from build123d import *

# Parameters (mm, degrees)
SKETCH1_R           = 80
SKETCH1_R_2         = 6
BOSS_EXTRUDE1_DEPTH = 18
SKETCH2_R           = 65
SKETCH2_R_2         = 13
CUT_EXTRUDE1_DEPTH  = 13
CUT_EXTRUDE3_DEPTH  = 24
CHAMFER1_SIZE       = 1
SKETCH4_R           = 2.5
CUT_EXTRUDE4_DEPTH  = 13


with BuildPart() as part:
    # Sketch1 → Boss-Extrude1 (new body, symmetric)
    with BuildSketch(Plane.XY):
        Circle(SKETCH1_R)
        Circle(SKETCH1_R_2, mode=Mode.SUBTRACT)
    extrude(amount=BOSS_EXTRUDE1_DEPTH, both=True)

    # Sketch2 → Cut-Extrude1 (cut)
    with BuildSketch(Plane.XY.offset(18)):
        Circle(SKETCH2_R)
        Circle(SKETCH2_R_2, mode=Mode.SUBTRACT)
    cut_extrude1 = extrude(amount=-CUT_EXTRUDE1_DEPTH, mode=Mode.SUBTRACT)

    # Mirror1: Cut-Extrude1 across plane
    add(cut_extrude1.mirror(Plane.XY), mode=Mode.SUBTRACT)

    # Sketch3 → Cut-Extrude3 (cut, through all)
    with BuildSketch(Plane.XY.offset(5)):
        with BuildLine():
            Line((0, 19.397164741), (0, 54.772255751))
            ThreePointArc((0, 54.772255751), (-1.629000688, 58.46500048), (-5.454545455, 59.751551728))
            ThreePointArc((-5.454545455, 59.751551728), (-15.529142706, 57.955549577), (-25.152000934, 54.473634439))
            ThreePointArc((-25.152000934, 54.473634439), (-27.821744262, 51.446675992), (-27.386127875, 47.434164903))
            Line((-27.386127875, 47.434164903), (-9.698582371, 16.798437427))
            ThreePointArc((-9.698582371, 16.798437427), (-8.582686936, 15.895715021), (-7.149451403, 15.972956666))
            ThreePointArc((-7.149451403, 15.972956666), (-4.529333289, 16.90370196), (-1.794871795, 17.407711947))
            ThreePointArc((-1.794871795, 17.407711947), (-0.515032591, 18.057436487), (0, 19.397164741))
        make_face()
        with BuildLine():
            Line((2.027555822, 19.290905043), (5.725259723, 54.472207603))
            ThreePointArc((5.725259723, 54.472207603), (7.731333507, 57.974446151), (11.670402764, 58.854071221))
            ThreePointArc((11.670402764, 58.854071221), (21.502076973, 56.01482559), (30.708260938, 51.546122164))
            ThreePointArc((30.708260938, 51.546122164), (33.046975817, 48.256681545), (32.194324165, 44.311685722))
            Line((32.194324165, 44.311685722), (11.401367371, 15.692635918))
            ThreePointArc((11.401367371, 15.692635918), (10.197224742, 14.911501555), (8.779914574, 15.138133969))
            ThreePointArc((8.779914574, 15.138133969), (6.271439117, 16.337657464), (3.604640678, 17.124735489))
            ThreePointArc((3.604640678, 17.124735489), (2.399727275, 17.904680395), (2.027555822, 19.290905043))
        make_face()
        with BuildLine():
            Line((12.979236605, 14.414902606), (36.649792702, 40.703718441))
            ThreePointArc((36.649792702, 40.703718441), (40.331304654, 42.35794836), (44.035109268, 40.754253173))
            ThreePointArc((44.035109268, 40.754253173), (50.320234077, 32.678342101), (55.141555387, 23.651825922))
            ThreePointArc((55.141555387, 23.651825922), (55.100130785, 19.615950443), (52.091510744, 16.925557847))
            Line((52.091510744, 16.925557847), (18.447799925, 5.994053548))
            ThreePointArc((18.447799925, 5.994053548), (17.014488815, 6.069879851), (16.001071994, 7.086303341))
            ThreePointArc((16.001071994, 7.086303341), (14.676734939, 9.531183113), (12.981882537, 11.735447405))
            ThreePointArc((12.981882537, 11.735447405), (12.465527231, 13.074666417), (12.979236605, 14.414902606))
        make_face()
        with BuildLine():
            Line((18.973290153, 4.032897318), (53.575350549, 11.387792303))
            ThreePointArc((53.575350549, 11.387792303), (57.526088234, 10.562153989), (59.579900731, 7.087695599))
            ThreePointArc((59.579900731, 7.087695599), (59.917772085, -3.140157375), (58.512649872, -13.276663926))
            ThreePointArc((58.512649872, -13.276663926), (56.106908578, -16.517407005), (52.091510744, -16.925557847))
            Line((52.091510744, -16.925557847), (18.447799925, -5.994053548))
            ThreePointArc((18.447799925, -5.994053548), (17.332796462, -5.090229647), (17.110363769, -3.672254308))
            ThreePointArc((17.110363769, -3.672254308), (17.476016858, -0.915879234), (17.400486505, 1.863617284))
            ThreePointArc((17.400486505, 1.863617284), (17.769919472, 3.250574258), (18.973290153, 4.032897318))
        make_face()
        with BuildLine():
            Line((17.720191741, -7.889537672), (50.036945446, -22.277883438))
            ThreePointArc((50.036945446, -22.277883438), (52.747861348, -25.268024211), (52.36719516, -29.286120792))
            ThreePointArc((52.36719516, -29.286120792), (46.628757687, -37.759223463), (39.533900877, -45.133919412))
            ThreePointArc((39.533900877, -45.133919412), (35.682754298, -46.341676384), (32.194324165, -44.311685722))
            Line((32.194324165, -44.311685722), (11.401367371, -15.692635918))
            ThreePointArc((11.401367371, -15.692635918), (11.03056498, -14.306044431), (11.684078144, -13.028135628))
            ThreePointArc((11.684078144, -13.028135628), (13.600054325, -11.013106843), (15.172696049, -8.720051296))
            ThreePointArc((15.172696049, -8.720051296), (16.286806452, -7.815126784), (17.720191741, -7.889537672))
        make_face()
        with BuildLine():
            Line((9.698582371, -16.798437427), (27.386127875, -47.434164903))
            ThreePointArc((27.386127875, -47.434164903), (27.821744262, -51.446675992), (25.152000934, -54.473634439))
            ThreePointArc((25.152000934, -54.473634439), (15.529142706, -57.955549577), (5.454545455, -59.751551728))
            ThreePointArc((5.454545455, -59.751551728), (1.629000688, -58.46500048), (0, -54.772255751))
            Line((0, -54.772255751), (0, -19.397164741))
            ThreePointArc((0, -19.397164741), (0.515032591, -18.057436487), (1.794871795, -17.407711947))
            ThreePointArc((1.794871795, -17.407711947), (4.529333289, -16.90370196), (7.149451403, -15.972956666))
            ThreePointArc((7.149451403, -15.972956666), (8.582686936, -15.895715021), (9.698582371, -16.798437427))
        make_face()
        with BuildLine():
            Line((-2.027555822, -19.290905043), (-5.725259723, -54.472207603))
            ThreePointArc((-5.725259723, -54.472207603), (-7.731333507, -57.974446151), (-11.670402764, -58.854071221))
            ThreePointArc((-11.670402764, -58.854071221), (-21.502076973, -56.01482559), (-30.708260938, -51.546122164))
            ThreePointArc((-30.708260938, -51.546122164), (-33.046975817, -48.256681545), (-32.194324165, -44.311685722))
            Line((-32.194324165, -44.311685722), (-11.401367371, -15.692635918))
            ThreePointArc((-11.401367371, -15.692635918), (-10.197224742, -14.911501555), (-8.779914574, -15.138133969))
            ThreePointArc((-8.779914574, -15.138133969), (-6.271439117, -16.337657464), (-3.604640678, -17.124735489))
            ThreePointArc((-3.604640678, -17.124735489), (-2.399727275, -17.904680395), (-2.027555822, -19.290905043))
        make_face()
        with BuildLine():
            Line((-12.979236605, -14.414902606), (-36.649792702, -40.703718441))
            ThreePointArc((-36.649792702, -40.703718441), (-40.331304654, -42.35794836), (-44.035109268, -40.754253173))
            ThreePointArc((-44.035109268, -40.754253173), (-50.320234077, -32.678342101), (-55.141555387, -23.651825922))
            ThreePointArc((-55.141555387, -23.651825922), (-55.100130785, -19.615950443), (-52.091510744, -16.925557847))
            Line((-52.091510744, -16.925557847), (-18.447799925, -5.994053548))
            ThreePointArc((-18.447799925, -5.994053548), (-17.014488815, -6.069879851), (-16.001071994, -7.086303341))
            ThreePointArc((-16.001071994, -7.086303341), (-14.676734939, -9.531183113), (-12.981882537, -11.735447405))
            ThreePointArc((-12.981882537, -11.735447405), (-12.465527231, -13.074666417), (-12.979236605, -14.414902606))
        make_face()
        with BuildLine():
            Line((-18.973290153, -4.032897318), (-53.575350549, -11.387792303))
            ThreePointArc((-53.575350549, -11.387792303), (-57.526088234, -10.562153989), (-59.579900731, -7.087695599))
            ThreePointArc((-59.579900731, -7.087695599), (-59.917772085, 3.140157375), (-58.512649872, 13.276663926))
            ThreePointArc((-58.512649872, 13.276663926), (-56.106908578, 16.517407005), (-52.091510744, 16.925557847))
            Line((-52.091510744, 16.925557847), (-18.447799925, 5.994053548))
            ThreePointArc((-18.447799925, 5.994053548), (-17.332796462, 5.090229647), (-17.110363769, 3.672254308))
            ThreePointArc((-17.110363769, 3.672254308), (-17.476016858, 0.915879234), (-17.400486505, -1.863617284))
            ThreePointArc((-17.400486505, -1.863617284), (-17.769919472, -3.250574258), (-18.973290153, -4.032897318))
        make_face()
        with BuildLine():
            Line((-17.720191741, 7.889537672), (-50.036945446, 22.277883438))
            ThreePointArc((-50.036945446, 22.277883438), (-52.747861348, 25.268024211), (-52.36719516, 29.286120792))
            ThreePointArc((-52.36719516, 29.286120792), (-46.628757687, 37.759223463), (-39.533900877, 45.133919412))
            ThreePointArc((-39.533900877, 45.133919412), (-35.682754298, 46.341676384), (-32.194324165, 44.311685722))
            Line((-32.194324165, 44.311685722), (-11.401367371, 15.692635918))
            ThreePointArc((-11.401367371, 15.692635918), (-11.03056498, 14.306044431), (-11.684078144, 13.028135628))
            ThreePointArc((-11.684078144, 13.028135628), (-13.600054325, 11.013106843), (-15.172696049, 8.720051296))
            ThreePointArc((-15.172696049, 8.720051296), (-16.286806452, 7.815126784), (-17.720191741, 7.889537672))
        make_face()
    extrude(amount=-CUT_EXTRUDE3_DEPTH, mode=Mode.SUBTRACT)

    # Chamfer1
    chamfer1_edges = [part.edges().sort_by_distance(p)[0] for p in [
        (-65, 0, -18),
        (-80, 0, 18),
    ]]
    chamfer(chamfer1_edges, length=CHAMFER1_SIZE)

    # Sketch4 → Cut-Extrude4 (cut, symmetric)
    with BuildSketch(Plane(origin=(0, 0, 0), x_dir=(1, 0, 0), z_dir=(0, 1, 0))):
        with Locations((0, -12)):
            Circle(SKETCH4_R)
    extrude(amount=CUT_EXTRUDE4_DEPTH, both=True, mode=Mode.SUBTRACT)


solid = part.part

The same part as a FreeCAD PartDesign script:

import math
import FreeCAD as App
import Part
import Sketcher
Q = App.Units.Quantity


def edges_at(feature, points):
    """Names of the edges that pass closest to the given points."""
    edges = feature.Shape.Edges
    near = lambda p: min(range(len(edges)), key=lambda i: edges[i].distToShape(Part.Vertex(*p))[0])
    return sorted({f"Edge{near(p) + 1}" for p in points})

doc = App.newDocument("Part")
body = doc.addObject("PartDesign::Body", "Body")

sketch1 = body.newObject("Sketcher::SketchObject", "Sketch")
sketch1.AttachmentSupport = (doc.getObject("XY_Plane"), [""])
sketch1.MapMode = "FlatFace"
sketch1.addGeometry(Part.Circle(App.Vector(0, 0, 0), App.Vector(0, 0, 1), 80), False)
sketch1.addGeometry(Part.Circle(App.Vector(0, 0, 0), App.Vector(0, 0, 1), 6), False)
sketch1.addConstraint(Sketcher.Constraint("Coincident", 0, 3, -1, 1))
sketch1.addConstraint(Sketcher.Constraint("Coincident", 1, 3, -1, 1))
sketch1.addConstraint(Sketcher.Constraint("Diameter", 0, Q("160 mm")))
sketch1.addConstraint(Sketcher.Constraint("Diameter", 1, Q("12 mm")))
pad1 = body.newObject("PartDesign::Pad", "Pad")
pad1.Profile = sketch1
pad1.Length = 36
pad1.Midplane = True

sketch2 = body.newObject("Sketcher::SketchObject", "Sketch001")
sketch2.AttachmentSupport = (doc.getObject("XY_Plane"), [""])
sketch2.MapMode = "FlatFace"
sketch2.AttachmentOffset = App.Placement(App.Vector(0, 0, 18), App.Rotation())
sketch2.addGeometry(Part.Circle(App.Vector(0, 0, 0), App.Vector(0, 0, 1), 65), False)
sketch2.addGeometry(Part.Circle(App.Vector(0, 0, 0), App.Vector(0, 0, 1), 13), False)
sketch2.addConstraint(Sketcher.Constraint("Coincident", 0, 3, -1, 1))
sketch2.addConstraint(Sketcher.Constraint("Coincident", 1, 3, -1, 1))
sketch2.addConstraint(Sketcher.Constraint("Diameter", 0, Q("130 mm")))
sketch2.addConstraint(Sketcher.Constraint("Diameter", 1, Q("26 mm")))
pocket1 = body.newObject("PartDesign::Pocket", "Pocket")
pocket1.Profile = sketch2
pocket1.Length = 13
doc.recompute()

mirrored = body.newObject("PartDesign::Mirrored", "Mirrored")
mirrored.Originals = [pocket1]
mirrored.MirrorPlane = (doc.getObject("XY_Plane"), [""])
body.Tip = mirrored

sketch3 = body.newObject("Sketcher::SketchObject", "Sketch002")
sketch3.AttachmentSupport = (doc.getObject("XY_Plane"), [""])
sketch3.MapMode = "FlatFace"
sketch3.AttachmentOffset = App.Placement(App.Vector(0, 0, 5), App.Rotation())
sketch3.addGeometry(Part.LineSegment(App.Vector(0, 19.397165, 0), App.Vector(0, 54.772256, 0)), False)
sketch3.addGeometry(Part.ArcOfCircle(Part.Circle(App.Vector(-5, 54.772256, 0), App.Vector(0, 0, 1), 5), math.radians(0), math.radians(95.215909)), False)
sketch3.addGeometry(Part.ArcOfCircle(Part.Circle(App.Vector(0, 0, 0), App.Vector(0, 0, 1), 60), math.radians(95.215909), math.radians(114.784091)), False)
sketch3.addGeometry(Part.ArcOfCircle(Part.Circle(App.Vector(-23.056001, 49.934165, 0), App.Vector(0, 0, 1), 5), math.radians(114.784091), math.radians(210)), False)
sketch3.addGeometry(Part.LineSegment(App.Vector(-27.386128, 47.434165, 0), App.Vector(-9.698582, 16.798437, 0)), False)
sketch3.addGeometry(Part.ArcOfCircle(Part.Circle(App.Vector(-7.966532, 17.798437, 0), App.Vector(0, 0, 1), 2), math.radians(-150), math.radians(-65.886842)), False)
sketch3.addGeometry(Part.ArcOfCircle(Part.Circle(App.Vector(0, 0, 0), App.Vector(0, 0, 1), 17.5), math.radians(95.886842), math.radians(114.113158)), False)
sketch3.addGeometry(Part.ArcOfCircle(Part.Circle(App.Vector(-2, 19.397165, 0), App.Vector(0, 0, 1), 2), math.radians(-84.113158), math.radians(0)), False)
sketch3.addGeometry(Part.LineSegment(App.Vector(5.72526, 54.472208, 0), App.Vector(2.027556, 19.290905, 0)), False)
sketch3.addGeometry(Part.ArcOfCircle(Part.Circle(App.Vector(4.0166, 19.081848, 0), App.Vector(0, 0, 1), 2), math.radians(174), math.radians(258.113158)), False)
sketch3.addGeometry(Part.ArcOfCircle(Part.Circle(App.Vector(0, 0, 0), App.Vector(0, 0, 1), 17.5), math.radians(59.886842), math.radians(78.113158)), False)
sketch3.addGeometry(Part.ArcOfCircle(Part.Circle(App.Vector(9.783333, 16.868206, 0), App.Vector(0, 0, 1), 2), math.radians(-120.113158), math.radians(-36)), False)
sketch3.addGeometry(Part.LineSegment(App.Vector(11.401367, 15.692636, 0), App.Vector(32.194324, 44.311686, 0)), False)
sketch3.addGeometry(Part.ArcOfCircle(Part.Circle(App.Vector(28.149239, 47.250612, 0), App.Vector(0, 0, 1), 5), math.radians(-36), math.radians(59.215909)), False)
sketch3.addGeometry(Part.ArcOfCircle(Part.Circle(App.Vector(0, 0, 0), App.Vector(0, 0, 1), 60), math.radians(59.215909), math.radians(78.784091)), False)
sketch3.addGeometry(Part.ArcOfCircle(Part.Circle(App.Vector(10.697869, 53.949565, 0), App.Vector(0, 0, 1), 5), math.radians(78.784091), math.radians(174)), False)
sketch3.addGeometry(Part.LineSegment(App.Vector(36.649793, 40.703718, 0), App.Vector(12.979237, 14.414903, 0)), False)
sketch3.addGeometry(Part.ArcOfCircle(Part.Circle(App.Vector(14.465526, 13.076641, 0), App.Vector(0, 0, 1), 2), math.radians(138), math.radians(222.113158)), False)
sketch3.addGeometry(Part.ArcOfCircle(Part.Circle(App.Vector(0, 0, 0), App.Vector(0, 0, 1), 17.5), math.radians(23.886842), math.radians(42.113158)), False)
sketch3.addGeometry(Part.ArcOfCircle(Part.Circle(App.Vector(17.829766, 7.896167, 0), App.Vector(0, 0, 1), 2), math.radians(-156.113158), math.radians(-72)), False)
sketch3.addGeometry(Part.LineSegment(App.Vector(18.4478, 5.994054, 0), App.Vector(52.091511, 16.925558, 0)), False)
sketch3.addGeometry(Part.ArcOfCircle(Part.Circle(App.Vector(50.546426, 21.68084, 0), App.Vector(0, 0, 1), 5), math.radians(-72), math.radians(23.215909)), False)
sketch3.addGeometry(Part.ArcOfCircle(Part.Circle(App.Vector(0, 0, 0), App.Vector(0, 0, 1), 60), math.radians(23.215909), math.radians(42.784091)), False)
sketch3.addGeometry(Part.ArcOfCircle(Part.Circle(App.Vector(40.365517, 37.358065, 0), App.Vector(0, 0, 1), 5), math.radians(42.784091), math.radians(138)), False)
sketch3.addGeometry(Part.LineSegment(App.Vector(53.575351, 11.387792, 0), App.Vector(18.97329, 4.032897, 0)), False)
sketch3.addGeometry(Part.ArcOfCircle(Part.Circle(App.Vector(19.389114, 2.076602, 0), App.Vector(0, 0, 1), 2), math.radians(102), math.radians(186.113158)), False)
sketch3.addGeometry(Part.ArcOfCircle(Part.Circle(App.Vector(0, 0, 0), App.Vector(0, 0, 1), 17.5), math.radians(-12.113158), math.radians(6.113158)), False)
sketch3.addGeometry(Part.ArcOfCircle(Part.Circle(App.Vector(19.065834, -4.091941, 0), App.Vector(0, 0, 1), 2), math.radians(167.886842), math.radians(252)), False)
sketch3.addGeometry(Part.LineSegment(App.Vector(18.4478, -5.994054, 0), App.Vector(52.091511, -16.925558, 0)), False)
sketch3.addGeometry(Part.ArcOfCircle(Part.Circle(App.Vector(53.636596, -12.170275, 0), App.Vector(0, 0, 1), 5), math.radians(-108), math.radians(-12.784091)), False)
sketch3.addGeometry(Part.ArcOfCircle(Part.Circle(App.Vector(0, 0, 0), App.Vector(0, 0, 1), 60), math.radians(-12.784091), math.radians(6.784091)), False)
sketch3.addGeometry(Part.ArcOfCircle(Part.Circle(App.Vector(54.614909, 6.497054, 0), App.Vector(0, 0, 1), 5), math.radians(6.784091), math.radians(102)), False)
sketch3.addGeometry(Part.LineSegment(App.Vector(50.036945, -22.277883, 0), App.Vector(17.720192, -7.889538, 0)), False)
sketch3.addGeometry(Part.ArcOfCircle(Part.Circle(App.Vector(16.906718, -9.716629, 0), App.Vector(0, 0, 1), 2), math.radians(66), math.radians(150.113158)), False)
sketch3.addGeometry(Part.ArcOfCircle(Part.Circle(App.Vector(0, 0, 0), App.Vector(0, 0, 1), 17.5), math.radians(-48.113158), math.radians(-29.886842)), False)
sketch3.addGeometry(Part.ArcOfCircle(Part.Circle(App.Vector(13.019401, -14.517065, 0), App.Vector(0, 0, 1), 2), math.radians(131.886842), math.radians(216)), False)
sketch3.addGeometry(Part.LineSegment(App.Vector(11.401367, -15.692636, 0), App.Vector(32.194324, -44.311686, 0)), False)
sketch3.addGeometry(Part.ArcOfCircle(Part.Circle(App.Vector(36.239409, -41.372759, 0), App.Vector(0, 0, 1), 5), math.radians(-144), math.radians(-48.784091)), False)
sketch3.addGeometry(Part.ArcOfCircle(Part.Circle(App.Vector(0, 0, 0), App.Vector(0, 0, 1), 60), math.radians(-48.784091), math.radians(-29.215909)), False)
sketch3.addGeometry(Part.ArcOfCircle(Part.Circle(App.Vector(48.003262, -26.845611, 0), App.Vector(0, 0, 1), 5), math.radians(-29.215909), math.radians(66)), False)
sketch3.addGeometry(Part.LineSegment(App.Vector(27.386128, -47.434165, 0), App.Vector(9.698582, -16.798437, 0)), False)
sketch3.addGeometry(Part.ArcOfCircle(Part.Circle(App.Vector(7.966532, -17.798437, 0), App.Vector(0, 0, 1), 2), math.radians(30), math.radians(114.113158)), False)
sketch3.addGeometry(Part.ArcOfCircle(Part.Circle(App.Vector(0, 0, 0), App.Vector(0, 0, 1), 17.5), math.radians(-84.113158), math.radians(-65.886842)), False)
sketch3.addGeometry(Part.ArcOfCircle(Part.Circle(App.Vector(2, -19.397165, 0), App.Vector(0, 0, 1), 2), math.radians(95.886842), math.radians(180)), False)
sketch3.addGeometry(Part.LineSegment(App.Vector(0, -19.397165, 0), App.Vector(0, -54.772256, 0)), False)
sketch3.addGeometry(Part.ArcOfCircle(Part.Circle(App.Vector(5, -54.772256, 0), App.Vector(0, 0, 1), 5), math.radians(-180), math.radians(-84.784091)), False)
sketch3.addGeometry(Part.ArcOfCircle(Part.Circle(App.Vector(0, 0, 0), App.Vector(0, 0, 1), 60), math.radians(-84.784091), math.radians(-65.215909)), False)
sketch3.addGeometry(Part.ArcOfCircle(Part.Circle(App.Vector(23.056001, -49.934165, 0), App.Vector(0, 0, 1), 5), math.radians(-65.215909), math.radians(30)), False)
sketch3.addGeometry(Part.LineSegment(App.Vector(-5.72526, -54.472208, 0), App.Vector(-2.027556, -19.290905, 0)), False)
sketch3.addGeometry(Part.ArcOfCircle(Part.Circle(App.Vector(-4.0166, -19.081848, 0), App.Vector(0, 0, 1), 2), math.radians(-6), math.radians(78.113158)), False)
sketch3.addGeometry(Part.ArcOfCircle(Part.Circle(App.Vector(0, 0, 0), App.Vector(0, 0, 1), 17.5), math.radians(-120.113158), math.radians(-101.886842)), False)
sketch3.addGeometry(Part.ArcOfCircle(Part.Circle(App.Vector(-9.783333, -16.868206, 0), App.Vector(0, 0, 1), 2), math.radians(59.886842), math.radians(144)), False)
sketch3.addGeometry(Part.LineSegment(App.Vector(-11.401367, -15.692636, 0), App.Vector(-32.194324, -44.311686, 0)), False)
sketch3.addGeometry(Part.ArcOfCircle(Part.Circle(App.Vector(-28.149239, -47.250612, 0), App.Vector(0, 0, 1), 5), math.radians(144), math.radians(239.215909)), False)
sketch3.addGeometry(Part.ArcOfCircle(Part.Circle(App.Vector(0, 0, 0), App.Vector(0, 0, 1), 60), math.radians(-120.784091), math.radians(-101.215909)), False)
sketch3.addGeometry(Part.ArcOfCircle(Part.Circle(App.Vector(-10.697869, -53.949565, 0), App.Vector(0, 0, 1), 5), math.radians(-101.215909), math.radians(-6)), False)
sketch3.addGeometry(Part.LineSegment(App.Vector(-36.649793, -40.703718, 0), App.Vector(-12.979237, -14.414903, 0)), False)
sketch3.addGeometry(Part.ArcOfCircle(Part.Circle(App.Vector(-14.465526, -13.076641, 0), App.Vector(0, 0, 1), 2), math.radians(-42), math.radians(42.113158)), False)
sketch3.addGeometry(Part.ArcOfCircle(Part.Circle(App.Vector(0, 0, 0), App.Vector(0, 0, 1), 17.5), math.radians(-156.113158), math.radians(-137.886842)), False)
sketch3.addGeometry(Part.ArcOfCircle(Part.Circle(App.Vector(-17.829766, -7.896167, 0), App.Vector(0, 0, 1), 2), math.radians(23.886842), math.radians(108)), False)
sketch3.addGeometry(Part.LineSegment(App.Vector(-18.4478, -5.994054, 0), App.Vector(-52.091511, -16.925558, 0)), False)
sketch3.addGeometry(Part.ArcOfCircle(Part.Circle(App.Vector(-50.546426, -21.68084, 0), App.Vector(0, 0, 1), 5), math.radians(108), math.radians(203.215909)), False)
sketch3.addGeometry(Part.ArcOfCircle(Part.Circle(App.Vector(0, 0, 0), App.Vector(0, 0, 1), 60), math.radians(-156.784091), math.radians(-137.215909)), False)
sketch3.addGeometry(Part.ArcOfCircle(Part.Circle(App.Vector(-40.365517, -37.358065, 0), App.Vector(0, 0, 1), 5), math.radians(-137.215909), math.radians(-42)), False)
sketch3.addGeometry(Part.LineSegment(App.Vector(-53.575351, -11.387792, 0), App.Vector(-18.97329, -4.032897, 0)), False)
sketch3.addGeometry(Part.ArcOfCircle(Part.Circle(App.Vector(-19.389114, -2.076602, 0), App.Vector(0, 0, 1), 2), math.radians(-78), math.radians(6.113158)), False)
sketch3.addGeometry(Part.ArcOfCircle(Part.Circle(App.Vector(0, 0, 0), App.Vector(0, 0, 1), 17.5), math.radians(167.886842), math.radians(186.113158)), False)
sketch3.addGeometry(Part.ArcOfCircle(Part.Circle(App.Vector(-19.065834, 4.091941, 0), App.Vector(0, 0, 1), 2), math.radians(-12.113158), math.radians(72)), False)
sketch3.addGeometry(Part.LineSegment(App.Vector(-18.4478, 5.994054, 0), App.Vector(-52.091511, 16.925558, 0)), False)
sketch3.addGeometry(Part.ArcOfCircle(Part.Circle(App.Vector(-53.636596, 12.170275, 0), App.Vector(0, 0, 1), 5), math.radians(72), math.radians(167.215909)), False)
sketch3.addGeometry(Part.ArcOfCircle(Part.Circle(App.Vector(0, 0, 0), App.Vector(0, 0, 1), 60), math.radians(167.215909), math.radians(186.784091)), False)
sketch3.addGeometry(Part.ArcOfCircle(Part.Circle(App.Vector(-54.614909, -6.497054, 0), App.Vector(0, 0, 1), 5), math.radians(-173.215909), math.radians(-78)), False)
sketch3.addGeometry(Part.LineSegment(App.Vector(-50.036945, 22.277883, 0), App.Vector(-17.720192, 7.889538, 0)), False)
sketch3.addGeometry(Part.ArcOfCircle(Part.Circle(App.Vector(-16.906718, 9.716629, 0), App.Vector(0, 0, 1), 2), math.radians(-114), math.radians(-29.886842)), False)
sketch3.addGeometry(Part.ArcOfCircle(Part.Circle(App.Vector(0, 0, 0), App.Vector(0, 0, 1), 17.5), math.radians(131.886842), math.radians(150.113158)), False)
sketch3.addGeometry(Part.ArcOfCircle(Part.Circle(App.Vector(-13.019401, 14.517065, 0), App.Vector(0, 0, 1), 2), math.radians(-48.113158), math.radians(36)), False)
sketch3.addGeometry(Part.LineSegment(App.Vector(-11.401367, 15.692636, 0), App.Vector(-32.194324, 44.311686, 0)), False)
sketch3.addGeometry(Part.ArcOfCircle(Part.Circle(App.Vector(-36.239409, 41.372759, 0), App.Vector(0, 0, 1), 5), math.radians(36), math.radians(131.215909)), False)
sketch3.addGeometry(Part.ArcOfCircle(Part.Circle(App.Vector(0, 0, 0), App.Vector(0, 0, 1), 60), math.radians(131.215909), math.radians(150.784091)), False)
sketch3.addGeometry(Part.ArcOfCircle(Part.Circle(App.Vector(-48.003262, 26.845611, 0), App.Vector(0, 0, 1), 5), math.radians(150.784091), math.radians(246)), False)
sketch3.addConstraint(Sketcher.Constraint("Tangent", 0, 2, 1, 1))
sketch3.addConstraint(Sketcher.Constraint("Tangent", 1, 2, 2, 1))
sketch3.addConstraint(Sketcher.Constraint("Tangent", 2, 2, 3, 1))
sketch3.addConstraint(Sketcher.Constraint("Tangent", 3, 2, 4, 1))
sketch3.addConstraint(Sketcher.Constraint("Tangent", 4, 2, 5, 1))
sketch3.addConstraint(Sketcher.Constraint("Tangent", 5, 2, 6, 2))
sketch3.addConstraint(Sketcher.Constraint("Tangent", 6, 1, 7, 1))
sketch3.addConstraint(Sketcher.Constraint("Tangent", 7, 2, 0, 1))
sketch3.addConstraint(Sketcher.Constraint("Tangent", 8, 2, 9, 1))
sketch3.addConstraint(Sketcher.Constraint("Tangent", 9, 2, 10, 2))
sketch3.addConstraint(Sketcher.Constraint("Tangent", 10, 1, 11, 1))
sketch3.addConstraint(Sketcher.Constraint("Tangent", 11, 2, 12, 1))
sketch3.addConstraint(Sketcher.Constraint("Tangent", 12, 2, 13, 1))
sketch3.addConstraint(Sketcher.Constraint("Tangent", 13, 2, 14, 1))
sketch3.addConstraint(Sketcher.Constraint("Tangent", 14, 2, 15, 1))
sketch3.addConstraint(Sketcher.Constraint("Tangent", 15, 2, 8, 1))
sketch3.addConstraint(Sketcher.Constraint("Tangent", 16, 2, 17, 1))
sketch3.addConstraint(Sketcher.Constraint("Tangent", 17, 2, 18, 2))
sketch3.addConstraint(Sketcher.Constraint("Tangent", 18, 1, 19, 1))
sketch3.addConstraint(Sketcher.Constraint("Tangent", 19, 2, 20, 1))
sketch3.addConstraint(Sketcher.Constraint("Tangent", 20, 2, 21, 1))
sketch3.addConstraint(Sketcher.Constraint("Tangent", 21, 2, 22, 1))
sketch3.addConstraint(Sketcher.Constraint("Tangent", 22, 2, 23, 1))
sketch3.addConstraint(Sketcher.Constraint("Tangent", 23, 2, 16, 1))
sketch3.addConstraint(Sketcher.Constraint("Tangent", 24, 2, 25, 1))
sketch3.addConstraint(Sketcher.Constraint("Tangent", 25, 2, 26, 2))
sketch3.addConstraint(Sketcher.Constraint("Tangent", 26, 1, 27, 1))
sketch3.addConstraint(Sketcher.Constraint("Tangent", 27, 2, 28, 1))
sketch3.addConstraint(Sketcher.Constraint("Tangent", 28, 2, 29, 1))
sketch3.addConstraint(Sketcher.Constraint("Tangent", 29, 2, 30, 1))
sketch3.addConstraint(Sketcher.Constraint("Tangent", 30, 2, 31, 1))
sketch3.addConstraint(Sketcher.Constraint("Tangent", 31, 2, 24, 1))
sketch3.addConstraint(Sketcher.Constraint("Tangent", 32, 2, 33, 1))
sketch3.addConstraint(Sketcher.Constraint("Tangent", 33, 2, 34, 2))
sketch3.addConstraint(Sketcher.Constraint("Tangent", 34, 1, 35, 1))
sketch3.addConstraint(Sketcher.Constraint("Tangent", 35, 2, 36, 1))
sketch3.addConstraint(Sketcher.Constraint("Tangent", 36, 2, 37, 1))
sketch3.addConstraint(Sketcher.Constraint("Tangent", 37, 2, 38, 1))
sketch3.addConstraint(Sketcher.Constraint("Tangent", 38, 2, 39, 1))
sketch3.addConstraint(Sketcher.Constraint("Tangent", 39, 2, 32, 1))
sketch3.addConstraint(Sketcher.Constraint("Tangent", 40, 2, 41, 1))
sketch3.addConstraint(Sketcher.Constraint("Tangent", 41, 2, 42, 2))
sketch3.addConstraint(Sketcher.Constraint("Tangent", 42, 1, 43, 1))
sketch3.addConstraint(Sketcher.Constraint("Tangent", 43, 2, 44, 1))
sketch3.addConstraint(Sketcher.Constraint("Tangent", 44, 2, 45, 1))
sketch3.addConstraint(Sketcher.Constraint("Tangent", 45, 2, 46, 1))
sketch3.addConstraint(Sketcher.Constraint("Tangent", 46, 2, 47, 1))
sketch3.addConstraint(Sketcher.Constraint("Tangent", 47, 2, 40, 1))
sketch3.addConstraint(Sketcher.Constraint("Tangent", 48, 2, 49, 1))
sketch3.addConstraint(Sketcher.Constraint("Tangent", 49, 2, 50, 2))
sketch3.addConstraint(Sketcher.Constraint("Tangent", 50, 1, 51, 1))
sketch3.addConstraint(Sketcher.Constraint("Tangent", 51, 2, 52, 1))
sketch3.addConstraint(Sketcher.Constraint("Tangent", 52, 2, 53, 1))
sketch3.addConstraint(Sketcher.Constraint("Tangent", 53, 2, 54, 1))
sketch3.addConstraint(Sketcher.Constraint("Tangent", 54, 2, 55, 1))
sketch3.addConstraint(Sketcher.Constraint("Tangent", 55, 2, 48, 1))
sketch3.addConstraint(Sketcher.Constraint("Tangent", 56, 2, 57, 1))
sketch3.addConstraint(Sketcher.Constraint("Tangent", 57, 2, 58, 2))
sketch3.addConstraint(Sketcher.Constraint("Tangent", 58, 1, 59, 1))
sketch3.addConstraint(Sketcher.Constraint("Tangent", 59, 2, 60, 1))
sketch3.addConstraint(Sketcher.Constraint("Tangent", 60, 2, 61, 1))
sketch3.addConstraint(Sketcher.Constraint("Tangent", 61, 2, 62, 1))
sketch3.addConstraint(Sketcher.Constraint("Tangent", 62, 2, 63, 1))
sketch3.addConstraint(Sketcher.Constraint("Tangent", 63, 2, 56, 1))
sketch3.addConstraint(Sketcher.Constraint("Tangent", 64, 2, 65, 1))
sketch3.addConstraint(Sketcher.Constraint("Tangent", 65, 2, 66, 2))
sketch3.addConstraint(Sketcher.Constraint("Tangent", 66, 1, 67, 1))
sketch3.addConstraint(Sketcher.Constraint("Tangent", 67, 2, 68, 1))
sketch3.addConstraint(Sketcher.Constraint("Tangent", 68, 2, 69, 1))
sketch3.addConstraint(Sketcher.Constraint("Tangent", 69, 2, 70, 1))
sketch3.addConstraint(Sketcher.Constraint("Tangent", 70, 2, 71, 1))
sketch3.addConstraint(Sketcher.Constraint("Tangent", 71, 2, 64, 1))
sketch3.addConstraint(Sketcher.Constraint("Tangent", 72, 2, 73, 1))
sketch3.addConstraint(Sketcher.Constraint("Tangent", 73, 2, 74, 2))
sketch3.addConstraint(Sketcher.Constraint("Tangent", 74, 1, 75, 1))
sketch3.addConstraint(Sketcher.Constraint("Tangent", 75, 2, 76, 1))
sketch3.addConstraint(Sketcher.Constraint("Tangent", 76, 2, 77, 1))
sketch3.addConstraint(Sketcher.Constraint("Tangent", 77, 2, 78, 1))
sketch3.addConstraint(Sketcher.Constraint("Tangent", 78, 2, 79, 1))
sketch3.addConstraint(Sketcher.Constraint("Tangent", 79, 2, 72, 1))
sketch3.addConstraint(Sketcher.Constraint("Vertical", 0))
sketch3.addConstraint(Sketcher.Constraint("Vertical", 44))
sketch3.addConstraint(Sketcher.Constraint("Coincident", 2, 3, -1, 1))
sketch3.addConstraint(Sketcher.Constraint("Coincident", 6, 3, -1, 1))
sketch3.addConstraint(Sketcher.Constraint("Coincident", 10, 3, -1, 1))
sketch3.addConstraint(Sketcher.Constraint("Coincident", 14, 3, -1, 1))
sketch3.addConstraint(Sketcher.Constraint("Coincident", 18, 3, -1, 1))
sketch3.addConstraint(Sketcher.Constraint("Coincident", 22, 3, -1, 1))
sketch3.addConstraint(Sketcher.Constraint("Coincident", 26, 3, -1, 1))
sketch3.addConstraint(Sketcher.Constraint("Coincident", 30, 3, -1, 1))
sketch3.addConstraint(Sketcher.Constraint("Coincident", 34, 3, -1, 1))
sketch3.addConstraint(Sketcher.Constraint("Coincident", 38, 3, -1, 1))
sketch3.addConstraint(Sketcher.Constraint("Coincident", 42, 3, -1, 1))
sketch3.addConstraint(Sketcher.Constraint("Coincident", 46, 3, -1, 1))
sketch3.addConstraint(Sketcher.Constraint("Coincident", 50, 3, -1, 1))
sketch3.addConstraint(Sketcher.Constraint("Coincident", 54, 3, -1, 1))
sketch3.addConstraint(Sketcher.Constraint("Coincident", 58, 3, -1, 1))
sketch3.addConstraint(Sketcher.Constraint("Coincident", 62, 3, -1, 1))
sketch3.addConstraint(Sketcher.Constraint("Coincident", 66, 3, -1, 1))
sketch3.addConstraint(Sketcher.Constraint("Coincident", 70, 3, -1, 1))
sketch3.addConstraint(Sketcher.Constraint("Coincident", 74, 3, -1, 1))
sketch3.addConstraint(Sketcher.Constraint("Coincident", 78, 3, -1, 1))
sketch3.addConstraint(Sketcher.Constraint("Equal", 1, 3))
sketch3.addConstraint(Sketcher.Constraint("Equal", 5, 7))
sketch3.addConstraint(Sketcher.Constraint("Equal", 7, 9))
sketch3.addConstraint(Sketcher.Constraint("Equal", 6, 10))
sketch3.addConstraint(Sketcher.Constraint("Equal", 9, 11))
sketch3.addConstraint(Sketcher.Constraint("Equal", 3, 13))
sketch3.addConstraint(Sketcher.Constraint("Equal", 2, 14))
sketch3.addConstraint(Sketcher.Constraint("Equal", 13, 15))
sketch3.addConstraint(Sketcher.Constraint("Equal", 11, 17))
sketch3.addConstraint(Sketcher.Constraint("Equal", 10, 18))
sketch3.addConstraint(Sketcher.Constraint("Equal", 17, 19))
sketch3.addConstraint(Sketcher.Constraint("Equal", 15, 21))
sketch3.addConstraint(Sketcher.Constraint("Equal", 14, 22))
sketch3.addConstraint(Sketcher.Constraint("Equal", 21, 23))
sketch3.addConstraint(Sketcher.Constraint("Equal", 19, 25))
sketch3.addConstraint(Sketcher.Constraint("Equal", 18, 26))
sketch3.addConstraint(Sketcher.Constraint("Equal", 25, 27))
sketch3.addConstraint(Sketcher.Constraint("Equal", 23, 29))
sketch3.addConstraint(Sketcher.Constraint("Equal", 22, 30))
sketch3.addConstraint(Sketcher.Constraint("Equal", 29, 31))
sketch3.addConstraint(Sketcher.Constraint("Equal", 27, 33))
sketch3.addConstraint(Sketcher.Constraint("Equal", 26, 34))
sketch3.addConstraint(Sketcher.Constraint("Equal", 33, 35))
sketch3.addConstraint(Sketcher.Constraint("Equal", 31, 37))
sketch3.addConstraint(Sketcher.Constraint("Equal", 30, 38))
sketch3.addConstraint(Sketcher.Constraint("Equal", 37, 39))
sketch3.addConstraint(Sketcher.Constraint("Equal", 35, 41))
sketch3.addConstraint(Sketcher.Constraint("Equal", 34, 42))
sketch3.addConstraint(Sketcher.Constraint("Equal", 41, 43))
sketch3.addConstraint(Sketcher.Constraint("Equal", 39, 45))
sketch3.addConstraint(Sketcher.Constraint("Equal", 38, 46))
sketch3.addConstraint(Sketcher.Constraint("Equal", 45, 47))
sketch3.addConstraint(Sketcher.Constraint("Equal", 43, 49))
sketch3.addConstraint(Sketcher.Constraint("Equal", 42, 50))
sketch3.addConstraint(Sketcher.Constraint("Equal", 49, 51))
sketch3.addConstraint(Sketcher.Constraint("Equal", 47, 53))
sketch3.addConstraint(Sketcher.Constraint("Equal", 46, 54))
sketch3.addConstraint(Sketcher.Constraint("Equal", 53, 55))
sketch3.addConstraint(Sketcher.Constraint("Equal", 51, 57))
sketch3.addConstraint(Sketcher.Constraint("Equal", 50, 58))
sketch3.addConstraint(Sketcher.Constraint("Equal", 57, 59))
sketch3.addConstraint(Sketcher.Constraint("Equal", 55, 61))
sketch3.addConstraint(Sketcher.Constraint("Equal", 54, 62))
sketch3.addConstraint(Sketcher.Constraint("Equal", 61, 63))
sketch3.addConstraint(Sketcher.Constraint("Equal", 59, 65))
sketch3.addConstraint(Sketcher.Constraint("Equal", 58, 66))
sketch3.addConstraint(Sketcher.Constraint("Equal", 65, 67))
sketch3.addConstraint(Sketcher.Constraint("Equal", 63, 69))
sketch3.addConstraint(Sketcher.Constraint("Equal", 62, 70))
sketch3.addConstraint(Sketcher.Constraint("Equal", 69, 71))
sketch3.addConstraint(Sketcher.Constraint("Equal", 67, 73))
sketch3.addConstraint(Sketcher.Constraint("Equal", 66, 74))
sketch3.addConstraint(Sketcher.Constraint("Equal", 73, 75))
sketch3.addConstraint(Sketcher.Constraint("Equal", 71, 77))
sketch3.addConstraint(Sketcher.Constraint("Equal", 70, 78))
sketch3.addConstraint(Sketcher.Constraint("Equal", 77, 79))
sketch3.addConstraint(Sketcher.Constraint("Symmetric", 4, 2, 40, 2, -1, 1))
sketch3.addConstraint(Sketcher.Constraint("Symmetric", 8, 2, 48, 2, -1, 1))
sketch3.addConstraint(Sketcher.Constraint("Symmetric", 11, 2, 51, 2, -1, 1))
sketch3.addConstraint(Sketcher.Constraint("Symmetric", 16, 2, 56, 2, -1, 1))
sketch3.addConstraint(Sketcher.Constraint("Symmetric", 19, 2, 59, 2, -1, 1))
sketch3.addConstraint(Sketcher.Constraint("Symmetric", 24, 2, 64, 2, -1, 1))
sketch3.addConstraint(Sketcher.Constraint("Symmetric", 27, 2, 67, 2, -1, 1))
sketch3.addConstraint(Sketcher.Constraint("Symmetric", 32, 2, 72, 2, -1, 1))
sketch3.addConstraint(Sketcher.Constraint("Symmetric", 35, 2, 75, 2, -1, 1))
sketch3.addConstraint(Sketcher.Constraint("Symmetric", 35, 2, 51, 2, -2))
sketch3.addConstraint(Sketcher.Constraint("Symmetric", 27, 2, 59, 2, -2))
sketch3.addConstraint(Sketcher.Constraint("Symmetric", 7, 2, 43, 2, -1))
sketch3.addConstraint(Sketcher.Constraint("Horizontal", 36, 2, 52, 2))
sketch3.addConstraint(Sketcher.Constraint("Horizontal", 28, 2, 60, 2))
sketch3.addConstraint(Sketcher.Constraint("Equal", 4, 8))
sketch3.addConstraint(Sketcher.Constraint("Equal", 8, 12))
sketch3.addConstraint(Sketcher.Constraint("Equal", 12, 16))
sketch3.addConstraint(Sketcher.Constraint("Equal", 20, 24))
sketch3.addConstraint(Sketcher.Constraint("Equal", 28, 32))
sketch3.addConstraint(Sketcher.Constraint("Radius", 1, Q("5 mm")))
sketch3.addConstraint(Sketcher.Constraint("Radius", 2, Q("60 mm")))
sketch3.addConstraint(Sketcher.Constraint("Radius", 5, Q("2 mm")))
sketch3.addConstraint(Sketcher.Constraint("Radius", 6, Q("17.5 mm")))
sketch3.addConstraint(Sketcher.Constraint("Angle", 4, Q("-60 deg")))
sketch3.addConstraint(Sketcher.Constraint("Angle", 8, Q("-96 deg")))
sketch3.addConstraint(Sketcher.Constraint("Angle", 12, Q("54 deg")))
sketch3.addConstraint(Sketcher.Constraint("Angle", 16, Q("-132 deg")))
sketch3.addConstraint(Sketcher.Constraint("Angle", 20, Q("18 deg")))
sketch3.addConstraint(Sketcher.Constraint("Angle", 24, Q("-168 deg")))
sketch3.addConstraint(Sketcher.Constraint("Angle", 32, Q("156 deg")))
pocket2 = body.newObject("PartDesign::Pocket", "Pocket001")
pocket2.Profile = sketch3
pocket2.Type = "ThroughAll"
doc.recompute()

chamfer = body.newObject("PartDesign::Chamfer", "Chamfer")
chamfer.Base = (pocket2, edges_at(pocket2, [(-65, 0, -18), (-80, 0, 18)]))
chamfer.Size = 1

sketch4 = body.newObject("Sketcher::SketchObject", "Sketch003")
sketch4.AttachmentSupport = (doc.getObject("XZ_Plane"), [""])
sketch4.MapMode = "FlatFace"
sketch4.addGeometry(Part.Circle(App.Vector(0, 12, 0), App.Vector(0, 0, 1), 2.5), False)
sketch4.addConstraint(Sketcher.Constraint("PointOnObject", 0, 3, -2))
sketch4.addConstraint(Sketcher.Constraint("Diameter", 0, Q("5 mm")))
sketch4.addConstraint(Sketcher.Constraint("DistanceY", -1, 1, 0, 3, Q("12 mm")))
pocket3 = body.newObject("PartDesign::Pocket", "Pocket002")
pocket3.Profile = sketch4
pocket3.Length = 26
pocket3.Midplane = True

doc.recompute()
